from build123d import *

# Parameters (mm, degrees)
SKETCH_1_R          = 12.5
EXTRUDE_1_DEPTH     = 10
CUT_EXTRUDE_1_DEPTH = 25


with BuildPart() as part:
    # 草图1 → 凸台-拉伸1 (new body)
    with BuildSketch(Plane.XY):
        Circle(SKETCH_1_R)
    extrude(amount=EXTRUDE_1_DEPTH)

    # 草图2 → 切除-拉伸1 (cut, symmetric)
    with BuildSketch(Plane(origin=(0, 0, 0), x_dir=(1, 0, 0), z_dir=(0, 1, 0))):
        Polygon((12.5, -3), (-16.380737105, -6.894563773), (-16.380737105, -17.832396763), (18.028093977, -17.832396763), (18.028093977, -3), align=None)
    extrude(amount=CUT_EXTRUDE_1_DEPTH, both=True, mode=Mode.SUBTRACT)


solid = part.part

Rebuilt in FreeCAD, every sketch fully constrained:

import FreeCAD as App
import Part
import Sketcher

V = App.Vector
Q = App.Units.Quantity


def add_polygon(sketch, points):
    """Adds a closed chain of lines whose ends are joined by coincident constraints."""
    first, n = sketch.GeometryCount, len(points)
    for a, b in zip(points, points[1:] + points[:1]):
        sketch.addGeometry(Part.LineSegment(App.Vector(*a, 0), App.Vector(*b, 0)), False)
    for i in range(n):
        sketch.addConstraint(Sketcher.Constraint("Coincident", first + i, 2, first + (i + 1) % n, 1))

doc = App.newDocument("Part")
body = doc.addObject("PartDesign::Body", "Body")

sketch1 = doc.addObject("Sketcher::SketchObject", "Sketch")
body.addObject(sketch1)
sketch1.AttachmentSupport = (doc.XY_Plane, [""])
sketch1.MapMode = "FlatFace"
sketch1.addGeometry(Part.Circle(V(0, 0, 0), V(0, 0, 1), 12.5), False)
sketch1.addConstraint(Sketcher.Constraint("Coincident", 0, 3, -1, 1))
sketch1.addConstraint(Sketcher.Constraint("Diameter", 0, Q("25 mm")))
pad1 = doc.addObject("PartDesign::Pad", "Pad")
body.addObject(pad1)
pad1.Profile = sketch1
pad1.Length = 10

sketch2 = doc.addObject("Sketcher::SketchObject", "Sketch001")
body.addObject(sketch2)
sketch2.AttachmentSupport = (doc.XZ_Plane, [""])
sketch2.MapMode = "FlatFace"
add_polygon(sketch2, [(12.5, 3), (-16.380737, 6.894564), (-16.380737, 17.832397), (18.028094, 17.832397), (18.028094, 3)])
sketch2.addConstraint(Sketcher.Constraint("Vertical", 1))
sketch2.addConstraint(Sketcher.Constraint("Horizontal", 2))
sketch2.addConstraint(Sketcher.Constraint("Vertical", 3))
sketch2.addConstraint(Sketcher.Constraint("Horizontal", 4))
sketch2.addConstraint(Sketcher.Constraint("DistanceY", -1, 1, 3, 2, Q("3 mm")))
sketch2.addConstraint(Sketcher.Constraint("DistanceX", -1, 1, 4, 2, Q("12.5 mm")))
sketch2.addConstraint(Sketcher.Constraint("Angle", 0, Q("172.32 deg")))
sketch2.addConstraint(Sketcher.Constraint("DistanceX", 2, 1, 2, 2, Q("34.408831 mm")))
sketch2.addConstraint(Sketcher.Constraint("DistanceX", 4, 2, 4, 1, Q("5.528094 mm")))
sketch2.addConstraint(Sketcher.Constraint("DistanceY", 1, 1, 1, 2, Q("10.937833 mm")))
pocket1 = doc.addObject("PartDesign::Pocket", "Pocket")
body.addObject(pocket1)
pocket1.Profile = sketch2
pocket1.Length = 50
pocket1.Midplane = True

doc.recompute()
